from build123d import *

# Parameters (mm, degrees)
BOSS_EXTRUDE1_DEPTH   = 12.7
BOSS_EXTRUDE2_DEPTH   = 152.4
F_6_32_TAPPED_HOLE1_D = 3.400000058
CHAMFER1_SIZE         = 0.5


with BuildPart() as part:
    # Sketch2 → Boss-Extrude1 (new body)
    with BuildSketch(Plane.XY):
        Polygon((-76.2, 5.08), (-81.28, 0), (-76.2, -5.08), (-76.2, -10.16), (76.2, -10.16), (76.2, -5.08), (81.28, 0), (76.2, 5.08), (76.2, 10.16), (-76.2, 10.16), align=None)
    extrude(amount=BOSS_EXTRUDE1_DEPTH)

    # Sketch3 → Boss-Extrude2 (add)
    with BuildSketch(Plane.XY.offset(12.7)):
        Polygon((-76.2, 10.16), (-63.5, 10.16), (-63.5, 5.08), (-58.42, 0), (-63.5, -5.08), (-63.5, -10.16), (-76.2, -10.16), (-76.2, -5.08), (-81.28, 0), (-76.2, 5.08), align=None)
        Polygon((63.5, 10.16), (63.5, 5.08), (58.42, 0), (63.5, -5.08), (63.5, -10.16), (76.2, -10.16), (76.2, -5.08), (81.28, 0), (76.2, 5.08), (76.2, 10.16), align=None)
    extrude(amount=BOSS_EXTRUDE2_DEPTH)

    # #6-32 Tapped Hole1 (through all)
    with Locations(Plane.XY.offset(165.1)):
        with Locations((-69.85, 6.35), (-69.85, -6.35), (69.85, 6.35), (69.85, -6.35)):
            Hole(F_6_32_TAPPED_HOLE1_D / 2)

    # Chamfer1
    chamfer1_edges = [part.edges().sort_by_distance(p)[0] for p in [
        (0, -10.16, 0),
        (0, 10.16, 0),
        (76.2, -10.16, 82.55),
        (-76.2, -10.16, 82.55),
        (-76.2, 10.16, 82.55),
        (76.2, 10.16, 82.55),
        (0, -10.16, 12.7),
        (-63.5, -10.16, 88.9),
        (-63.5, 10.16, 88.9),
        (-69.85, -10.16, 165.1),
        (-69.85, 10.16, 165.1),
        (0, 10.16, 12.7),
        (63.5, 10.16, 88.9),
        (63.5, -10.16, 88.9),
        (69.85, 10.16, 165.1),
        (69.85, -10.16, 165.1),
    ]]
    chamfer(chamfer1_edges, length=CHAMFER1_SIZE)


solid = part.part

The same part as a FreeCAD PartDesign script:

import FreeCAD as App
import Part
import Sketcher

V = App.Vector
Q = App.Units.Quantity


def edges_at(feature, points):
    """Names of the edges that pass closest to the given points."""
    edges = feature.Shape.Edges
    near = lambda p: min(range(len(edges)), key=lambda i: edges[i].distToShape(Part.Vertex(*p))[0])
    return sorted({f"Edge{near(p) + 1}" for p in points})

doc = App.newDocument("Part")
body = doc.addObject("PartDesign::Body", "Body")

# Sketch on XY plane
sketch1 = body.newObject("Sketcher::SketchObject", "Sketch")
sketch1.AttachmentSupport = (doc.getObject("XY_Plane"), [""])
sketch1.MapMode = "FlatFace"
sketch1.addGeometry(Part.LineSegment(V(-76, 5, 0), V(-81, 0, 0)), False)
sketch1.addGeometry(Part.LineSegment(V(-81, 0, 0), V(-76, -5, 0)), False)
sketch1.addGeometry(Part.LineSegment(V(-76, -5, 0), V(-76, -10, 0)), False)
sketch1.addGeometry(Part.LineSegment(V(-76, -10, 0), V(76, -10, 0)), False)
sketch1.addGeometry(Part.LineSegment(V(76, -10, 0), V(76, -5, 0)), False)
sketch1.addGeometry(Part.LineSegment(V(76, -5, 0), V(81, 0, 0)), False)
sketch1.addGeometry(Part.LineSegment(V(81, 0, 0), V(76, 5, 0)), False)
sketch1.addGeometry(Part.LineSegment(V(76, 5, 0), V(76, 10, 0)), False)
sketch1.addGeometry(Part.LineSegment(V(76, 10, 0), V(-76, 10, 0)), False)
sketch1.addGeometry(Part.LineSegment(V(-76, 10, 0), V(-76, 5, 0)), False)
sketch1.addConstraint(Sketcher.Constraint("Coincident", 0, 2, 1, 1))
sketch1.addConstraint(Sketcher.Constraint("Coincident", 1, 2, 2, 1))
sketch1.addConstraint(Sketcher.Constraint("Coincident", 2, 2, 3, 1))
sketch1.addConstraint(Sketcher.Constraint("Coincident", 3, 2, 4, 1))
sketch1.addConstraint(Sketcher.Constraint("Coincident", 4, 2, 5, 1))
sketch1.addConstraint(Sketcher.Constraint("Coincident", 5, 2, 6, 1))
sketch1.addConstraint(Sketcher.Constraint("Coincident", 6, 2, 7, 1))
sketch1.addConstraint(Sketcher.Constraint("Coincident", 7, 2, 8, 1))
sketch1.addConstraint(Sketcher.Constraint("Coincident", 8, 2, 9, 1))
sketch1.addConstraint(Sketcher.Constraint("Coincident", 9, 2, 0, 1))
sketch1.addConstraint(Sketcher.Constraint("Vertical", 2))
sketch1.addConstraint(Sketcher.Constraint("Horizontal", 3))
sketch1.addConstraint(Sketcher.Constraint("Vertical", 4))
sketch1.addConstraint(Sketcher.Constraint("Vertical", 7))
sketch1.addConstraint(Sketcher.Constraint("Horizontal", 8))
sketch1.addConstraint(Sketcher.Constraint("Vertical", 9))
sketch1.addConstraint(Sketcher.Constraint("Symmetric", 0, 2, 5, 2, -1, 1))
sketch1.addConstraint(Sketcher.Constraint("Symmetric", 1, 2, 6, 2, -1, 1))
sketch1.addConstraint(Sketcher.Constraint("Symmetric", 3, 2, 8, 2, -1, 1))
sketch1.addConstraint(Sketcher.Constraint("Symmetric", 1, 2, 4, 2, -2))
sketch1.addConstraint(Sketcher.Constraint("PointOnObject", 0, 2, -1))
sketch1.addConstraint(Sketcher.Constraint("Perpendicular", 0, 1))
sketch1.addConstraint(Sketcher.Constraint("Perpendicular", 1, 5))
sketch1.addConstraint(Sketcher.Constraint("DistanceX", 3, 1, 3, 2, Q("6 in")))
sketch1.addConstraint(Sketcher.Constraint("DistanceY", 2, 2, 2, 1, Q("0.2 in")))
sketch1.addConstraint(Sketcher.Constraint("DistanceX", 0, 2, -1, 1, Q("3.2 in")))
pad1 = body.newObject("PartDesign::Pad", "Pad")
pad1.Profile = sketch1
pad1.Length = Q("0.5 in")

# Sketch on XY plane
sketch2 = body.newObject("Sketcher::SketchObject", "Sketch001")
sketch2.AttachmentSupport = (doc.getObject("XY_Plane"), [""])
sketch2.MapMode = "FlatFace"
sketch2.AttachmentOffset = App.Placement(V(0, 0, 0.5 * 25.4), App.Rotation())
sketch2.addGeometry(Part.LineSegment(V(-64, 10, 0), V(-76, 10, 0)), False)
sketch2.addGeometry(Part.LineSegment(V(-76, 10, 0), V(-76, 5, 0)), False)
sketch2.addGeometry(Part.LineSegment(V(-76, 5, 0), V(-81, 0, 0)), False)
sketch2.addGeometry(Part.LineSegment(V(-81, 0, 0), V(-76, -5, 0)), False)
sketch2.addGeometry(Part.LineSegment(V(-76, -5, 0), V(-76, -10, 0)), False)
sketch2.addGeometry(Part.LineSegment(V(-76, -10, 0), V(-64, -10, 0)), False)
sketch2.addGeometry(Part.LineSegment(V(-64, -10, 0), V(-64, -5, 0)), False)
sketch2.addGeometry(Part.LineSegment(V(-64, -5, 0), V(-58, 0, 0)), False)
sketch2.addGeometry(Part.LineSegment(V(-58, 0, 0), V(-64, 5, 0)), False)
sketch2.addGeometry(Part.LineSegment(V(-64, 5, 0), V(-64, 10, 0)), False)
sketch2.addGeometry(Part.LineSegment(V(64, 10, 0), V(64, 5, 0)), False)
sketch2.addGeometry(Part.LineSegment(V(64, 5, 0), V(58, 0, 0)), False)
sketch2.addGeometry(Part.LineSegment(V(58, 0, 0), V(64, -5, 0)), False)
sketch2.addGeometry(Part.LineSegment(V(64, -5, 0), V(64, -10, 0)), False)
sketch2.addGeometry(Part.LineSegment(V(64, -10, 0), V(76, -10, 0)), False)
sketch2.addGeometry(Part.LineSegment(V(76, -10, 0), V(76, -5, 0)), False)
sketch2.addGeometry(Part.LineSegment(V(76, -5, 0), V(81, 0, 0)), False)
sketch2.addGeometry(Part.LineSegment(V(81, 0, 0), V(76, 5, 0)), False)
sketch2.addGeometry(Part.LineSegment(V(76, 5, 0), V(76, 10, 0)), False)
sketch2.addGeometry(Part.LineSegment(V(76, 10, 0), V(64, 10, 0)), False)
sketch2.addConstraint(Sketcher.Constraint("Coincident", 0, 2, 1, 1))
sketch2.addConstraint(Sketcher.Constraint("Coincident", 1, 2, 2, 1))
sketch2.addConstraint(Sketcher.Constraint("Coincident", 2, 2, 3, 1))
sketch2.addConstraint(Sketcher.Constraint("Coincident", 3, 2, 4, 1))
sketch2.addConstraint(Sketcher.Constraint("Coincident", 4, 2, 5, 1))
sketch2.addConstraint(Sketcher.Constraint("Coincident", 5, 2, 6, 1))
sketch2.addConstraint(Sketcher.Constraint("Coincident", 6, 2, 7, 1))
sketch2.addConstraint(Sketcher.Constraint("Coincident", 7, 2, 8, 1))
sketch2.addConstraint(Sketcher.Constraint("Coincident", 8, 2, 9, 1))
sketch2.addConstraint(Sketcher.Constraint("Coincident", 9, 2, 0, 1))
sketch2.addConstraint(Sketcher.Constraint("Coincident", 10, 2, 11, 1))
sketch2.addConstraint(Sketcher.Constraint("Coincident", 11, 2, 12, 1))
sketch2.addConstraint(Sketcher.Constraint("Coincident", 12, 2, 13, 1))
sketch2.addConstraint(Sketcher.Constraint("Coincident", 13, 2, 14, 1))
sketch2.addConstraint(Sketcher.Constraint("Coincident", 14, 2, 15, 1))
sketch2.addConstraint(Sketcher.Constraint("Coincident", 15, 2, 16, 1))
sketch2.addConstraint(Sketcher.Constraint("Coincident", 16, 2, 17, 1))
sketch2.addConstraint(Sketcher.Constraint("Coincident", 17, 2, 18, 1))
sketch2.addConstraint(Sketcher.Constraint("Coincident", 18, 2, 19, 1))
sketch2.addConstraint(Sketcher.Constraint("Coincident", 19, 2, 10, 1))
sketch2.addConstraint(Sketcher.Constraint("Horizontal", 0))
sketch2.addConstraint(Sketcher.Constraint("Vertical", 1))
sketch2.addConstraint(Sketcher.Constraint("Vertical", 4))
sketch2.addConstraint(Sketcher.Constraint("Horizontal", 5))
sketch2.addConstraint(Sketcher.Constraint("Vertical", 6))
sketch2.addConstraint(Sketcher.Constraint("Vertical", 9))
sketch2.addConstraint(Sketcher.Constraint("Vertical", 10))
sketch2.addConstraint(Sketcher.Constraint("Vertical", 13))
sketch2.addConstraint(Sketcher.Constraint("Horizontal", 14))
sketch2.addConstraint(Sketcher.Constraint("Vertical", 15))
sketch2.addConstraint(Sketcher.Constraint("Vertical", 18))
sketch2.addConstraint(Sketcher.Constraint("Horizontal", 19))
sketch2.addConstraint(Sketcher.Constraint("Symmetric", 6, 2, 10, 2, -1, 1))
sketch2.addConstraint(Sketcher.Constraint("Symmetric", 7, 2, 11, 2, -1, 1))
sketch2.addConstraint(Sketcher.Constraint("Symmetric", 8, 2, 12, 2, -1, 1))
sketch2.addConstraint(Sketcher.Constraint("Symmetric", 0, 2, 14, 2, -1, 1))
sketch2.addConstraint(Sketcher.Constraint("Symmetric", 2, 2, 16, 2, -1, 1))
sketch2.addConstraint(Sketcher.Constraint("Symmetric", 3, 2, 17, 2, -1, 1))
sketch2.addConstraint(Sketcher.Constraint("Symmetric", 8, 2, 10, 2, -2))
sketch2.addConstraint(Sketcher.Constraint("Symmetric", 4, 2, 14, 2, -2))
sketch2.addConstraint(Sketcher.Constraint("PointOnObject", 2, 2, -1))
sketch2.addConstraint(Sketcher.Constraint("PointOnObject", 7, 2, -1))
sketch2.addConstraint(Sketcher.Constraint("Perpendicular", 2, 3))
sketch2.addConstraint(Sketcher.Constraint("Perpendicular", 3, 7))
sketch2.addConstraint(Sketcher.Constraint("Perpendicular", 7, 8))
sketch2.addConstraint(Sketcher.Constraint("Perpendicular", 12, 16))
sketch2.addConstraint(Sketcher.Constraint("Horizontal", 3, 2, 6, 2))
sketch2.addConstraint(Sketcher.Constraint("Horizontal", 9, 2, 18, 2))
sketch2.addConstraint(Sketcher.Constraint("DistanceX", 0, 2, 0, 1, Q("0.5 in")))
sketch2.addConstraint(Sketcher.Constraint("DistanceY", 1, 2, 1, 1, Q("0.2 in")))
sketch2.addConstraint(Sketcher.Constraint("DistanceX", 0, 2, -1, 1, Q("3 in")))
sketch2.addConstraint(Sketcher.Constraint("DistanceY", -1, 1, 0, 2, Q("0.4 in")))
pad2 = body.newObject("PartDesign::Pad", "Pad001")
pad2.Profile = sketch2
pad2.Length = Q("6 in")

# Sketch on XY plane
sketch3 = body.newObject("Sketcher::SketchObject", "Sketch002")
sketch3.AttachmentSupport = (doc.getObject("XY_Plane"), [""])
sketch3.MapMode = "FlatFace"
sketch3.AttachmentOffset = App.Placement(V(0, 0, 6.5 * 25.4), App.Rotation())
sketch3.addGeometry(Part.Circle(V(-69.8, 6.3, 0), V(0, 0, 1), 1.7), False)
sketch3.addGeometry(Part.Circle(V(-69.8, -6.3, 0), V(0, 0, 1), 1.7), False)
sketch3.addGeometry(Part.Circle(V(69.8, 6.3, 0), V(0, 0, 1), 1.7), False)
sketch3.addGeometry(Part.Circle(V(69.8, -6.3, 0), V(0, 0, 1), 1.7), False)
sketch3.addConstraint(Sketcher.Constraint("Equal", 0, 1))
sketch3.addConstraint(Sketcher.Constraint("Equal", 1, 2))
sketch3.addConstraint(Sketcher.Constraint("Equal", 2, 3))
sketch3.addConstraint(Sketcher.Constraint("Symmetric", 1, 3, 2, 3, -1, 1))
sketch3.addConstraint(Sketcher.Constraint("Symmetric", 0, 3, 3, 3, -1, 1))
sketch3.addConstraint(Sketcher.Constraint("Symmetric", 0, 3, 2, 3, -2))
sketch3.addConstraint(Sketcher.Constraint("DistanceY", 1, 3, 0, 3, Q("0.5 in")))
sketch3.addConstraint(Sketcher.Constraint("DistanceX", 0, 3, 2, 3, Q("5.5 in")))
sketch3.addConstraint(Sketcher.Constraint("Diameter", 0, 3.4))
doc.recompute()
hole = body.newObject("PartDesign::Hole", "Hole")
hole.Profile = sketch3
hole.ThreadType = "None"
hole.Diameter = 3.4
hole.DepthType = "ThroughAll"
doc.recompute()

chamfer = body.newObject("PartDesign::Chamfer", "Chamfer")
chamfer.Base = (hole, edges_at(hole, [
    (0, -10.16, 0),
    (0, 10.16, 0),
    (76.2, -10.16, 82.55),
    (-76.2, -10.16, 82.55),
    (-76.2, 10.16, 82.55),
    (76.2, 10.16, 82.55),
    (0, -10.16, 12.7),
    (-63.5, -10.16, 88.9),
    (-63.5, 10.16, 88.9),
    (-69.85, -10.16, 165.1),
    (-69.85, 10.16, 165.1),
    (0, 10.16, 12.7),
    (63.5, 10.16, 88.9),
    (63.5, -10.16, 88.9),
    (69.85, 10.16, 165.1),
    (69.85, -10.16, 165.1),
]))
chamfer.Size = 0.5

doc.recompute()
